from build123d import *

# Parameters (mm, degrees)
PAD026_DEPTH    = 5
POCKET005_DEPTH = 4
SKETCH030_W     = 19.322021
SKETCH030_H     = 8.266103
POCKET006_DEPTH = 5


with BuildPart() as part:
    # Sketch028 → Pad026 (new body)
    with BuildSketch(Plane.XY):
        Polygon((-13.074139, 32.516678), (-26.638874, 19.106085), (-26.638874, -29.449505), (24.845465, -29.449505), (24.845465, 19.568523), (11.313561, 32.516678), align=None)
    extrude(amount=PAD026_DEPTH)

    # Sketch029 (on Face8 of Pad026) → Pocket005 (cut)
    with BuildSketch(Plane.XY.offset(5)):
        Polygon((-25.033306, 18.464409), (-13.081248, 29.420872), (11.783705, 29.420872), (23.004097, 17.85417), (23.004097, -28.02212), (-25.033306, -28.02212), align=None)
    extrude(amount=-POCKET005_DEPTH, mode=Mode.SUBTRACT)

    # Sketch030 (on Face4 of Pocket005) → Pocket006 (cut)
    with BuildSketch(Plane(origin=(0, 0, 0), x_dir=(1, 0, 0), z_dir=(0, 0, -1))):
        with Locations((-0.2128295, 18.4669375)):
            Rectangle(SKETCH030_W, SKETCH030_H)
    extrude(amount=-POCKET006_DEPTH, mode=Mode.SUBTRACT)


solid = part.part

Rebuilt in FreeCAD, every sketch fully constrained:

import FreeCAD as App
import Part
import Sketcher
from FreeCAD import Vector


def add_polygon(sketch, points):
    """Adds a closed chain of lines whose ends are joined by coincident constraints."""
    first, n = sketch.GeometryCount, len(points)
    for a, b in zip(points, points[1:] + points[:1]):
        sketch.addGeometry(Part.LineSegment(App.Vector(*a, 0), App.Vector(*b, 0)), False)
    for i in range(n):
        sketch.addConstraint(Sketcher.Constraint("Coincident", first + i, 2, first + (i + 1) % n, 1))

doc = App.newDocument("Part")
body = doc.addObject("PartDesign::Body", "Body")

# Sketch on XY plane
sketch1 = body.newObject("Sketcher::SketchObject", "Sketch")
sketch1.AttachmentSupport = (doc.getObject("XY_Plane"), [""])
sketch1.MapMode = "FlatFace"
add_polygon(sketch1, [(-13, 33), (-27, 19), (-27, -29), (25, -29), (25, 20), (11, 33)])  # lines 0-5
sketch1.addConstraint(Sketcher.Constraint("Vertical", 1))
sketch1.addConstraint(Sketcher.Constraint("Horizontal", 2))
sketch1.addConstraint(Sketcher.Constraint("Vertical", 3))
sketch1.addConstraint(Sketcher.Constraint("Horizontal", 5))
sketch1.addConstraint(Sketcher.Constraint("DistanceX", 5, 2, 5, 1, 24.3877))
sketch1.addConstraint(Sketcher.Constraint("DistanceX", 2, 1, 2, 2, 51.484339))
sketch1.addConstraint(Sketcher.Constraint("DistanceY", 1, 2, 1, 1, 48.55559))
sketch1.addConstraint(Sketcher.Constraint("Distance", 0, 19.074749))
sketch1.addConstraint(Sketcher.Constraint("Distance", 4, 18.728778))
sketch1.addConstraint(Sketcher.Constraint("DistanceY", 3, 1, 3, 2, 49.018028))
sketch1.addConstraint(Sketcher.Constraint("DistanceX", -1, 1, 4, 2, 11.313561))
sketch1.addConstraint(Sketcher.Constraint("DistanceY", -1, 1, 0, 2, 19.106085))
pad1 = body.newObject("PartDesign::Pad", "Pad")
pad1.Profile = sketch1
pad1.Length = 5

# Sketch on XY plane
sketch2 = body.newObject("Sketcher::SketchObject", "Sketch001")
sketch2.AttachmentSupport = (doc.getObject("XY_Plane"), [""])
sketch2.MapMode = "FlatFace"
sketch2.AttachmentOffset = App.Placement(Vector(0, 0, 5), App.Rotation())
add_polygon(sketch2, [(-13, 29), (-25, 18), (-25, -28), (23, -28), (23, 18), (12, 29)])  # lines 0-5
sketch2.addConstraint(Sketcher.Constraint("Vertical", 1))
sketch2.addConstraint(Sketcher.Constraint("Horizontal", 2))
sketch2.addConstraint(Sketcher.Constraint("Vertical", 3))
sketch2.addConstraint(Sketcher.Constraint("Horizontal", 5))
sketch2.addConstraint(Sketcher.Constraint("DistanceY", 1, 2, 1, 1, 46.486529))
sketch2.addConstraint(Sketcher.Constraint("DistanceY", 3, 1, 3, 2, 45.87629))
sketch2.addConstraint(Sketcher.Constraint("DistanceY", 3, 2, 4, 2, 11.566702))
sketch2.addConstraint(Sketcher.Constraint("Distance", 0, 16.214061))
sketch2.addConstraint(Sketcher.Constraint("Distance", 4, 16.114769))
sketch2.addConstraint(Sketcher.Constraint("DistanceX", 2, 1, 2, 2, 48.037403))
sketch2.addConstraint(Sketcher.Constraint("DistanceY", -1, 1, 0, 2, 18.464409))
sketch2.addConstraint(Sketcher.Constraint("DistanceX", 0, 2, -1, 1, 25.033306))
pocket1 = body.newObject("PartDesign::Pocket", "Pocket")
pocket1.Profile = sketch2
pocket1.Length = 4

# Sketch on XY plane
sketch3 = body.newObject("Sketcher::SketchObject", "Sketch002")
sketch3.AttachmentSupport = (doc.getObject("XY_Plane"), [""])
sketch3.MapMode = "FlatFace"
add_polygon(sketch3, [(-10, -23), (-10, -14), (9, -14), (9, -23)])  # lines 0-3
sketch3.addConstraint(Sketcher.Constraint("Vertical", 0))
sketch3.addConstraint(Sketcher.Constraint("Horizontal", 1))
sketch3.addConstraint(Sketcher.Constraint("Vertical", 2))
sketch3.addConstraint(Sketcher.Constraint("Horizontal", 3))
sketch3.addConstraint(Sketcher.Constraint("DistanceX", 1, 1, 1, 2, 19.322021))
sketch3.addConstraint(Sketcher.Constraint("DistanceY", 0, 1, 0, 2, 8.266103))
sketch3.addConstraint(Sketcher.Constraint("DistanceX", 0, 2, -1, 1, 9.87384))
sketch3.addConstraint(Sketcher.Constraint("DistanceY", 2, 2, -1, 1, 22.599989))
pocket2 = body.newObject("PartDesign::Pocket", "Pocket001")
pocket2.Profile = sketch3
pocket2.Length = 5
pocket2.Reversed = True

doc.recompute()
